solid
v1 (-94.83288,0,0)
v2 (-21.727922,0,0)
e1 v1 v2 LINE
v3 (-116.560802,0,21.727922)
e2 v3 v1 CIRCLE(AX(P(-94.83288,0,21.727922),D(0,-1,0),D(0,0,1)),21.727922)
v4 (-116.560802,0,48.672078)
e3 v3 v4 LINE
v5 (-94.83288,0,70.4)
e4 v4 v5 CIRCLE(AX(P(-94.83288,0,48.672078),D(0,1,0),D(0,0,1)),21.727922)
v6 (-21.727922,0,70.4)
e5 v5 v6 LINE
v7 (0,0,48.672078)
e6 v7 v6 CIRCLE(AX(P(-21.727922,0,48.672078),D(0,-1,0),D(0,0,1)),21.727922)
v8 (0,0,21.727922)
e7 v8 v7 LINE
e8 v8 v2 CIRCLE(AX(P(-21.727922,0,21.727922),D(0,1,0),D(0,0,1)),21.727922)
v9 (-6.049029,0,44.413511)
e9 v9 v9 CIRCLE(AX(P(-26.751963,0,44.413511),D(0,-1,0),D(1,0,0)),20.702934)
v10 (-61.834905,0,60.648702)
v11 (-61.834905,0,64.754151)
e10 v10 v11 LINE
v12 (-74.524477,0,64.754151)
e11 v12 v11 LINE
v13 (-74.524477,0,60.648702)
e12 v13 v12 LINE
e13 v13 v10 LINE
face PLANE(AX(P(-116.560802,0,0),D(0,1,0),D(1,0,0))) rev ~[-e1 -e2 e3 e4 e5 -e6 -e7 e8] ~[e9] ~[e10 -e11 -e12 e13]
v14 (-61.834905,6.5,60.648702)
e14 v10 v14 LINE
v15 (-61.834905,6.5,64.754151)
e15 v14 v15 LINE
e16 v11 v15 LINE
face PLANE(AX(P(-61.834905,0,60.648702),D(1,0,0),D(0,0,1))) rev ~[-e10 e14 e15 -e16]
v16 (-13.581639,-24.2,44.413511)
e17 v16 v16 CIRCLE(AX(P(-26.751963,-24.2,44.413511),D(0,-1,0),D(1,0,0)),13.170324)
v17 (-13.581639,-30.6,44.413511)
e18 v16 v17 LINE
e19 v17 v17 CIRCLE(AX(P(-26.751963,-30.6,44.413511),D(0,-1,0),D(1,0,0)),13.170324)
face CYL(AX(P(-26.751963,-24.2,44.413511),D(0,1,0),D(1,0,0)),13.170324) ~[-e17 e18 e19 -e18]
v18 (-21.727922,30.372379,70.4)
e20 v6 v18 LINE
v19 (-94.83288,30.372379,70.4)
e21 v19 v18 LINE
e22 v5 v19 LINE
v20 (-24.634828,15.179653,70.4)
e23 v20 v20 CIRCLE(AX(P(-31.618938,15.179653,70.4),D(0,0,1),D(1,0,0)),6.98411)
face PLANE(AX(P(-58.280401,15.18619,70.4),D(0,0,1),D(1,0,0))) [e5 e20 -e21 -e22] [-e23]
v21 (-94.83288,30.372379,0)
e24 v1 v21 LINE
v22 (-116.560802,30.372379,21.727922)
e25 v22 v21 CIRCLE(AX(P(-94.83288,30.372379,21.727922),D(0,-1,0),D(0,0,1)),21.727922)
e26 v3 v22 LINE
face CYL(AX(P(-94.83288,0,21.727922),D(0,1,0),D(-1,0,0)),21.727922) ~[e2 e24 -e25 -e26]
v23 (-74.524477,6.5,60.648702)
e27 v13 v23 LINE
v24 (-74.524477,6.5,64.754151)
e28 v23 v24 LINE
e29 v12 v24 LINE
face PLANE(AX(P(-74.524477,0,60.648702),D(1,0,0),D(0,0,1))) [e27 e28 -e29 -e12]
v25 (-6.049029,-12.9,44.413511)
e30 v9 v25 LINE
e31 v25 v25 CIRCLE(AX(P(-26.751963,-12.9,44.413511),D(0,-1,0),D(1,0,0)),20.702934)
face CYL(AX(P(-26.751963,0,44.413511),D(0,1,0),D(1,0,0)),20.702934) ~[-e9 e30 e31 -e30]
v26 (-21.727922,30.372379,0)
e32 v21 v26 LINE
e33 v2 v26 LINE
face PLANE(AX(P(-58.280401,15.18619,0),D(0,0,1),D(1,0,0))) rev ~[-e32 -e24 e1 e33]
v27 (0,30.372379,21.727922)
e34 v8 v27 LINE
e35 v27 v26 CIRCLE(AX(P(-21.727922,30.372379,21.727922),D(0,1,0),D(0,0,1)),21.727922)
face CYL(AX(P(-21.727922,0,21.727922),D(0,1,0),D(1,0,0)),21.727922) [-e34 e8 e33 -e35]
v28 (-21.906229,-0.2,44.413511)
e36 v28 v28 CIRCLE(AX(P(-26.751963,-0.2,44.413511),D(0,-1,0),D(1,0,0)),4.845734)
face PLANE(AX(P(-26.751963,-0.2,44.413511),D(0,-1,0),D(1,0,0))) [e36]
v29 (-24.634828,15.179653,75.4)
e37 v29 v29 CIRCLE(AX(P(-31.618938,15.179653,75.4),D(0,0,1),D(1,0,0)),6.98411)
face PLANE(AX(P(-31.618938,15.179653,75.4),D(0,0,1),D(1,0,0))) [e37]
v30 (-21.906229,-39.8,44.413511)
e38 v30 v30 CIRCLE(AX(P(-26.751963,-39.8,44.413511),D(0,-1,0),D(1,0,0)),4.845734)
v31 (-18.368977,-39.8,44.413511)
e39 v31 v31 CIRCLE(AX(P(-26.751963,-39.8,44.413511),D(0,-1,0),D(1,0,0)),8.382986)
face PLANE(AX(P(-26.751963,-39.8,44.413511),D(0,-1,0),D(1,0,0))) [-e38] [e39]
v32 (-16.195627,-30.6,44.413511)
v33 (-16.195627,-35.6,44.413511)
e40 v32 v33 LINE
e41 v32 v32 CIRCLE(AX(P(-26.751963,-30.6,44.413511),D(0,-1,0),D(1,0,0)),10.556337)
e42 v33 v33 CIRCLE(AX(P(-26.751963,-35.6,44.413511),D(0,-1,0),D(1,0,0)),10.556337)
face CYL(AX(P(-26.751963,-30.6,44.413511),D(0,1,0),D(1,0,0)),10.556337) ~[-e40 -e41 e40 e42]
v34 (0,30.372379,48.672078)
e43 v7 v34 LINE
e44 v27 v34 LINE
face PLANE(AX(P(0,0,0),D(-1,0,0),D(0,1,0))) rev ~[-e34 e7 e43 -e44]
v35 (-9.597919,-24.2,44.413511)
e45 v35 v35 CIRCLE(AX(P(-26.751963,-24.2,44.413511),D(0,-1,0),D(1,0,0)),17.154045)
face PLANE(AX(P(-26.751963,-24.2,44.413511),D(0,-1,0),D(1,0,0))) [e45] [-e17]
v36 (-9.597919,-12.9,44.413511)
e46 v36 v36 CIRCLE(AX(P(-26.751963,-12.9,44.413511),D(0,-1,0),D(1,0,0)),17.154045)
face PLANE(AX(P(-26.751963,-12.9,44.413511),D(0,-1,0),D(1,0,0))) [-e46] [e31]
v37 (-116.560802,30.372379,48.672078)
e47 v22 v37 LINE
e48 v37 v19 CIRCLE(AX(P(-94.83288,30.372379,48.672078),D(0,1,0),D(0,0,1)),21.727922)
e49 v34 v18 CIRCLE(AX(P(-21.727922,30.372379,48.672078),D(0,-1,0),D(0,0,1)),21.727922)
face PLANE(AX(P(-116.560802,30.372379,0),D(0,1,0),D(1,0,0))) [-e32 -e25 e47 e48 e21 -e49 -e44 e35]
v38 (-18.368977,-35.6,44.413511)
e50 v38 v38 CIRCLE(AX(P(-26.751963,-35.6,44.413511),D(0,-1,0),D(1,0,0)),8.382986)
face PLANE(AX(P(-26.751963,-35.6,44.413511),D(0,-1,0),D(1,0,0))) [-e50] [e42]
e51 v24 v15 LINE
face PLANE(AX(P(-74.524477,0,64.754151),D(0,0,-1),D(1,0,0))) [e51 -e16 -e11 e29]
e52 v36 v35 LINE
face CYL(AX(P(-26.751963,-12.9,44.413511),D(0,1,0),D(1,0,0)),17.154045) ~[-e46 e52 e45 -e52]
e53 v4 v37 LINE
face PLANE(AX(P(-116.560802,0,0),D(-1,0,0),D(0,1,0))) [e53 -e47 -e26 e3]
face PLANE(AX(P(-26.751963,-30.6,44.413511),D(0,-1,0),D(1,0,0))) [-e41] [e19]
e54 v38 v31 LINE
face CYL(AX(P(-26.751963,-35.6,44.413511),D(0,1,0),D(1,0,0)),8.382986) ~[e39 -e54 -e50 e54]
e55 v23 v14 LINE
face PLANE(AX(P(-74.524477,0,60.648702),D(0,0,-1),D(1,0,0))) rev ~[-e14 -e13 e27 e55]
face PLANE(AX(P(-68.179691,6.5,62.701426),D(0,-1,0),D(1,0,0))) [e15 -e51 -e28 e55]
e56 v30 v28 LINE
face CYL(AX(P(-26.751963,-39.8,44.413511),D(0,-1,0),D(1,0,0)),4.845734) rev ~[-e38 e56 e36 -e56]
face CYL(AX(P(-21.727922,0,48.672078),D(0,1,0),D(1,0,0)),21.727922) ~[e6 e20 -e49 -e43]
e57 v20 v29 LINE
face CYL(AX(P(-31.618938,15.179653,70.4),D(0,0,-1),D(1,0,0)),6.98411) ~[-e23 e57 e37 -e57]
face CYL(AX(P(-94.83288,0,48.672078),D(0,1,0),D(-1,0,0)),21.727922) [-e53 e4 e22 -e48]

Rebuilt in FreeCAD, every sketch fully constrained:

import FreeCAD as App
import Part
import Sketcher
Q = App.Units.Quantity


def edges_at(feature, points):
    """Names of the edges that pass closest to the given points."""
    edges = feature.Shape.Edges
    near = lambda p: min(range(len(edges)), key=lambda i: edges[i].distToShape(Part.Vertex(*p))[0])
    return sorted({f"Edge{near(p) + 1}" for p in points})


def add_polygon(sketch, points):
    """Adds a closed chain of lines whose ends are joined by coincident constraints."""
    first, n = sketch.GeometryCount, len(points)
    for a, b in zip(points, points[1:] + points[:1]):
        sketch.addGeometry(Part.LineSegment(App.Vector(*a, 0), App.Vector(*b, 0)), False)
    for i in range(n):
        sketch.addConstraint(Sketcher.Constraint("Coincident", first + i, 2, first + (i + 1) % n, 1))

doc = App.newDocument("Part")
body = doc.addObject("PartDesign::Body", "Body")

# Sketch on XY plane
sketch1 = body.newObject("Sketcher::SketchObject", "Sketch")
sketch1.AttachmentSupport = (doc.getObject("XY_Plane"), [""])
sketch1.MapMode = "FlatFace"
add_polygon(sketch1, [(-117, 30), (-117, 0), (0, 0), (0, 30)])  # lines 0-3
sketch1.addConstraint(Sketcher.Constraint("Vertical", 0))
sketch1.addConstraint(Sketcher.Constraint("Horizontal", 1))
sketch1.addConstraint(Sketcher.Constraint("Vertical", 2))
sketch1.addConstraint(Sketcher.Constraint("Horizontal", 3))
sketch1.addConstraint(Sketcher.Constraint("Coincident", 1, 2, -1, 1))
sketch1.addConstraint(Sketcher.Constraint("DistanceX", 1, 1, 1, 2, Q("116.560802 mm")))
sketch1.addConstraint(Sketcher.Constraint("DistanceY", 0, 2, 0, 1, Q("30.372379 mm")))
pad1 = body.newObject("PartDesign::Pad", "Pad")
pad1.Profile = sketch1
pad1.Length = 70.4
doc.recompute()

fillet = body.newObject("PartDesign::Fillet", "Fillet")
fillet.Base = (pad1, edges_at(pad1, [
    (-116.561, 15.186, 70.4),
    (0, 15.186, 70.4),
    (-116.561, 15.186, 0),
    (0, 15.186, 0),
]))
fillet.Radius = 21.727922

# Sketch on XZ plane
sketch2 = body.newObject("Sketcher::SketchObject", "Sketch001")
sketch2.AttachmentSupport = (doc.getObject("XZ_Plane"), [""])
sketch2.MapMode = "FlatFace"
sketch2.addGeometry(Part.Circle(App.Vector(-27, 44, 0), App.Vector(0, 0, 1), 21), False)
sketch2.addConstraint(Sketcher.Constraint("Diameter", 0, Q("41.405869 mm")))
sketch2.addConstraint(Sketcher.Constraint("DistanceY", -1, 1, 0, 3, Q("44.413511 mm")))
sketch2.addConstraint(Sketcher.Constraint("DistanceX", 0, 3, -1, 1, Q("26.751963 mm")))
pad2 = body.newObject("PartDesign::Pad", "Pad001")
pad2.Profile = sketch2
pad2.Length = 12.9

# Sketch on XZ plane
sketch3 = body.newObject("Sketcher::SketchObject", "Sketch002")
sketch3.AttachmentSupport = (doc.getObject("XZ_Plane"), [""])
sketch3.MapMode = "FlatFace"
sketch3.AttachmentOffset = App.Placement(App.Vector(0, 0, 12.9), App.Rotation())
sketch3.addGeometry(Part.Circle(App.Vector(-27, 44, 0), App.Vector(0, 0, 1), 17), False)
sketch3.addConstraint(Sketcher.Constraint("Diameter", 0, Q("34.308089 mm")))
sketch3.addConstraint(Sketcher.Constraint("DistanceY", -1, 1, 0, 3, Q("44.413511 mm")))
sketch3.addConstraint(Sketcher.Constraint("DistanceX", 0, 3, -1, 1, Q("26.751963 mm")))
pad3 = body.newObject("PartDesign::Pad", "Pad002")
pad3.Profile = sketch3
pad3.Length = 11.3

# Sketch on XZ plane
sketch4 = body.newObject("Sketcher::SketchObject", "Sketch003")
sketch4.AttachmentSupport = (doc.getObject("XZ_Plane"), [""])
sketch4.MapMode = "FlatFace"
sketch4.AttachmentOffset = App.Placement(App.Vector(0, 0, 24.2), App.Rotation())
sketch4.addGeometry(Part.Circle(App.Vector(-27, 44, 0), App.Vector(0, 0, 1), 13), False)
sketch4.addConstraint(Sketcher.Constraint("Diameter", 0, Q("26.340648 mm")))
sketch4.addConstraint(Sketcher.Constraint("DistanceY", -1, 1, 0, 3, Q("44.413511 mm")))
sketch4.addConstraint(Sketcher.Constraint("DistanceX", 0, 3, -1, 1, Q("26.751963 mm")))
pad4 = body.newObject("PartDesign::Pad", "Pad003")
pad4.Profile = sketch4
pad4.Length = 6.4

# Sketch on XZ plane
sketch5 = body.newObject("Sketcher::SketchObject", "Sketch004")
sketch5.AttachmentSupport = (doc.getObject("XZ_Plane"), [""])
sketch5.MapMode = "FlatFace"
sketch5.AttachmentOffset = App.Placement(App.Vector(0, 0, 30.6), App.Rotation())
sketch5.addGeometry(Part.Circle(App.Vector(-27, 44, 0), App.Vector(0, 0, 1), 11), False)
sketch5.addConstraint(Sketcher.Constraint("Diameter", 0, Q("21.112674 mm")))
sketch5.addConstraint(Sketcher.Constraint("DistanceY", -1, 1, 0, 3, Q("44.413511 mm")))
sketch5.addConstraint(Sketcher.Constraint("DistanceX", 0, 3, -1, 1, Q("26.751963 mm")))
pad5 = body.newObject("PartDesign::Pad", "Pad004")
pad5.Profile = sketch5
pad5.Length = 5

# Sketch on XZ plane
sketch6 = body.newObject("Sketcher::SketchObject", "Sketch005")
sketch6.AttachmentSupport = (doc.getObject("XZ_Plane"), [""])
sketch6.MapMode = "FlatFace"
sketch6.AttachmentOffset = App.Placement(App.Vector(0, 0, 35.6), App.Rotation())
sketch6.addGeometry(Part.Circle(App.Vector(-27, 44, 0), App.Vector(0, 0, 1), 8), False)
sketch6.addConstraint(Sketcher.Constraint("Diameter", 0, Q("16.765972 mm")))
sketch6.addConstraint(Sketcher.Constraint("DistanceY", -1, 1, 0, 3, Q("44.413511 mm")))
sketch6.addConstraint(Sketcher.Constraint("DistanceX", 0, 3, -1, 1, Q("26.751963 mm")))
pad6 = body.newObject("PartDesign::Pad", "Pad005")
pad6.Profile = sketch6
pad6.Length = 4.2

# Sketch on XZ plane
sketch7 = body.newObject("Sketcher::SketchObject", "Sketch006")
sketch7.AttachmentSupport = (doc.getObject("XZ_Plane"), [""])
sketch7.MapMode = "FlatFace"
add_polygon(sketch7, [(-59.5, 64), (-59.5, 59.3), (-46.6, 59.3), (-46.6, 64)])  # lines 0-3
sketch7.addConstraint(Sketcher.Constraint("Vertical", 0))
sketch7.addConstraint(Sketcher.Constraint("Horizontal", 1))
sketch7.addConstraint(Sketcher.Constraint("Vertical", 2))
sketch7.addConstraint(Sketcher.Constraint("Horizontal", 3))
sketch7.addConstraint(Sketcher.Constraint("DistanceX", 1, 1, 1, 2, Q("12.902379 mm")))
sketch7.addConstraint(Sketcher.Constraint("DistanceY", 0, 2, 0, 1, Q("4.770733 mm")))
sketch7.addConstraint(Sketcher.Constraint("DistanceY", -1, 1, 0, 2, Q("59.266239 mm")))
sketch7.addConstraint(Sketcher.Constraint("DistanceX", 0, 2, -1, 1, Q("59.487544 mm")))
pad7 = body.newObject("PartDesign::Pad", "Pad006")
pad7.Profile = sketch7
pad7.Length = 6.7
pad7.Reversed = True

# Sketch on XZ plane
sketch8 = body.newObject("Sketcher::SketchObject", "Sketch007")
sketch8.AttachmentSupport = (doc.getObject("XZ_Plane"), [""])
sketch8.MapMode = "FlatFace"
add_polygon(sketch8, [(-68.2, 62.8), (-68.2, 58.1), (-54.6, 58.1), (-54.6, 62.8)])  # lines 0-3
sketch8.addConstraint(Sketcher.Constraint("Vertical", 0))
sketch8.addConstraint(Sketcher.Constraint("Horizontal", 1))
sketch8.addConstraint(Sketcher.Constraint("Vertical", 2))
sketch8.addConstraint(Sketcher.Constraint("Horizontal", 3))
sketch8.addConstraint(Sketcher.Constraint("DistanceX", 1, 1, 1, 2, Q("13.599809 mm")))
sketch8.addConstraint(Sketcher.Constraint("DistanceY", 0, 2, 0, 1, Q("4.623357 mm")))
sketch8.addConstraint(Sketcher.Constraint("DistanceX", 0, 2, -1, 1, Q("68.205371 mm")))
sketch8.addConstraint(Sketcher.Constraint("DistanceY", -1, 1, 0, 2, Q("58.144469 mm")))
pad8 = body.newObject("PartDesign::Pad", "Pad007")
pad8.Profile = sketch8
pad8.Length = 10
pad8.Reversed = True

# Sketch on XZ plane
sketch9 = body.newObject("Sketcher::SketchObject", "Sketch008")
sketch9.AttachmentSupport = (doc.getObject("XZ_Plane"), [""])
sketch9.MapMode = "FlatFace"
add_polygon(sketch9, [(-74.5, 64.8), (-74.5, 60.6), (-61.8, 60.6), (-61.8, 64.8)])  # lines 0-3
sketch9.addConstraint(Sketcher.Constraint("Vertical", 0))
sketch9.addConstraint(Sketcher.Constraint("Horizontal", 1))
sketch9.addConstraint(Sketcher.Constraint("Vertical", 2))
sketch9.addConstraint(Sketcher.Constraint("Horizontal", 3))
sketch9.addConstraint(Sketcher.Constraint("DistanceX", 1, 1, 1, 2, Q("12.689572 mm")))
sketch9.addConstraint(Sketcher.Constraint("DistanceY", 0, 2, 0, 1, Q("4.105449 mm")))
sketch9.addConstraint(Sketcher.Constraint("DistanceY", -1, 1, 2, 2, Q("64.754151 mm")))
sketch9.addConstraint(Sketcher.Constraint("DistanceX", 0, 2, -1, 1, Q("74.524477 mm")))
pocket1 = body.newObject("PartDesign::Pocket", "Pocket")
pocket1.Profile = sketch9
pocket1.Length = 6.5

# Sketch on XY plane
sketch10 = body.newObject("Sketcher::SketchObject", "Sketch009")
sketch10.AttachmentSupport = (doc.getObject("XY_Plane"), [""])
sketch10.MapMode = "FlatFace"
sketch10.AttachmentOffset = App.Placement(App.Vector(0, 0, 70.4), App.Rotation())
sketch10.addGeometry(Part.Circle(App.Vector(-32, 15, 0), App.Vector(0, 0, 1), 7), False)
sketch10.addConstraint(Sketcher.Constraint("Diameter", 0, Q("13.968219 mm")))
sketch10.addConstraint(Sketcher.Constraint("DistanceX", 0, 3, -1, 1, Q("31.618938 mm")))
sketch10.addConstraint(Sketcher.Constraint("DistanceY", -1, 1, 0, 3, Q("15.179653 mm")))
pad9 = body.newObject("PartDesign::Pad", "Pad008")
pad9.Profile = sketch10
pad9.Length = 5

# Sketch on XZ plane
sketch11 = body.newObject("Sketcher::SketchObject", "Sketch010")
sketch11.AttachmentSupport = (doc.getObject("XZ_Plane"), [""])
sketch11.MapMode = "FlatFace"
sketch11.AttachmentOffset = App.Placement(App.Vector(0, 0, 39.8), App.Rotation())
sketch11.addGeometry(Part.Circle(App.Vector(-26.8, 44.4, 0), App.Vector(0, 0, 1), 4.8), False)
sketch11.addConstraint(Sketcher.Constraint("Diameter", 0, Q("9.691469 mm")))
sketch11.addConstraint(Sketcher.Constraint("DistanceY", -1, 1, 0, 3, Q("44.413511 mm")))
sketch11.addConstraint(Sketcher.Constraint("DistanceX", 0, 3, -1, 1, Q("26.751963 mm")))
pocket2 = body.newObject("PartDesign::Pocket", "Pocket001")
pocket2.Profile = sketch11
pocket2.Length = 39.6

doc.recompute()
